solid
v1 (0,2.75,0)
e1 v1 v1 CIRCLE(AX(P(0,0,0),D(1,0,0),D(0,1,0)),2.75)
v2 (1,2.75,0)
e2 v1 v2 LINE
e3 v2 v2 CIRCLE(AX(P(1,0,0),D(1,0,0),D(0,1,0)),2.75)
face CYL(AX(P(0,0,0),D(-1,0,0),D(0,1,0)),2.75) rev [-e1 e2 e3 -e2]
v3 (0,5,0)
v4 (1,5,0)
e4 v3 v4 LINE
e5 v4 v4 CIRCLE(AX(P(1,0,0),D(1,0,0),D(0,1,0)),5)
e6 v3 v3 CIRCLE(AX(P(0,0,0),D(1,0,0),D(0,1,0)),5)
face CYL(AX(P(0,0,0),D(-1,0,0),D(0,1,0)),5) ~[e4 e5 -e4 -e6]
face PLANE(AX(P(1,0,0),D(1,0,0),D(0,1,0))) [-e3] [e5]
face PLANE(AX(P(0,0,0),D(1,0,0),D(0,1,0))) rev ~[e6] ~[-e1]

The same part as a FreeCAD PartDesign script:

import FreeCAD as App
import Part
import Sketcher

V = App.Vector
Q = App.Units.Quantity

doc = App.newDocument("Part")
params = doc.addObject("Spreadsheet::Sheet", "Params")
for row, (alias, value) in enumerate([
    ("sketch1_diameter", "10 mm"),
    ("sketch1_diameter2", "5.5 mm"),
    ("pad1_length", "1 mm"),
], start=1):
    params.set(f"A{row}", alias)
    params.set(f"B{row}", "=" + value)
    params.setAlias(f"B{row}", alias)

body = doc.addObject("PartDesign::Body", "Body")

# Sketch on YZ plane
sketch1 = body.newObject("Sketcher::SketchObject", "Sketch")
sketch1.AttachmentSupport = (doc.getObject("YZ_Plane"), [""])
sketch1.MapMode = "FlatFace"
sketch1.addGeometry([
    Part.Circle(V(0, 0, 0), V(0, 0, 1), 5),
    Part.Circle(V(0, 0, 0), V(0, 0, 1), 2.8),
], False)
sketch1.addConstraint([
    Sketcher.Constraint("Coincident", 0, 3, -1, 1),
    Sketcher.Constraint("Coincident", 1, 3, -1, 1),
    Sketcher.Constraint("Diameter", 0, Q("10 mm")),
    Sketcher.Constraint("Diameter", 1, Q("5.5 mm")),
])
sketch1.setExpression("Constraints[2]", "Params.sketch1_diameter")
sketch1.setExpression("Constraints[3]", "Params.sketch1_diameter2")
pad1 = body.newObject("PartDesign::Pad", "Pad")
pad1.Profile = sketch1
pad1.setExpression("Length", "Params.pad1_length")

doc.recompute()
